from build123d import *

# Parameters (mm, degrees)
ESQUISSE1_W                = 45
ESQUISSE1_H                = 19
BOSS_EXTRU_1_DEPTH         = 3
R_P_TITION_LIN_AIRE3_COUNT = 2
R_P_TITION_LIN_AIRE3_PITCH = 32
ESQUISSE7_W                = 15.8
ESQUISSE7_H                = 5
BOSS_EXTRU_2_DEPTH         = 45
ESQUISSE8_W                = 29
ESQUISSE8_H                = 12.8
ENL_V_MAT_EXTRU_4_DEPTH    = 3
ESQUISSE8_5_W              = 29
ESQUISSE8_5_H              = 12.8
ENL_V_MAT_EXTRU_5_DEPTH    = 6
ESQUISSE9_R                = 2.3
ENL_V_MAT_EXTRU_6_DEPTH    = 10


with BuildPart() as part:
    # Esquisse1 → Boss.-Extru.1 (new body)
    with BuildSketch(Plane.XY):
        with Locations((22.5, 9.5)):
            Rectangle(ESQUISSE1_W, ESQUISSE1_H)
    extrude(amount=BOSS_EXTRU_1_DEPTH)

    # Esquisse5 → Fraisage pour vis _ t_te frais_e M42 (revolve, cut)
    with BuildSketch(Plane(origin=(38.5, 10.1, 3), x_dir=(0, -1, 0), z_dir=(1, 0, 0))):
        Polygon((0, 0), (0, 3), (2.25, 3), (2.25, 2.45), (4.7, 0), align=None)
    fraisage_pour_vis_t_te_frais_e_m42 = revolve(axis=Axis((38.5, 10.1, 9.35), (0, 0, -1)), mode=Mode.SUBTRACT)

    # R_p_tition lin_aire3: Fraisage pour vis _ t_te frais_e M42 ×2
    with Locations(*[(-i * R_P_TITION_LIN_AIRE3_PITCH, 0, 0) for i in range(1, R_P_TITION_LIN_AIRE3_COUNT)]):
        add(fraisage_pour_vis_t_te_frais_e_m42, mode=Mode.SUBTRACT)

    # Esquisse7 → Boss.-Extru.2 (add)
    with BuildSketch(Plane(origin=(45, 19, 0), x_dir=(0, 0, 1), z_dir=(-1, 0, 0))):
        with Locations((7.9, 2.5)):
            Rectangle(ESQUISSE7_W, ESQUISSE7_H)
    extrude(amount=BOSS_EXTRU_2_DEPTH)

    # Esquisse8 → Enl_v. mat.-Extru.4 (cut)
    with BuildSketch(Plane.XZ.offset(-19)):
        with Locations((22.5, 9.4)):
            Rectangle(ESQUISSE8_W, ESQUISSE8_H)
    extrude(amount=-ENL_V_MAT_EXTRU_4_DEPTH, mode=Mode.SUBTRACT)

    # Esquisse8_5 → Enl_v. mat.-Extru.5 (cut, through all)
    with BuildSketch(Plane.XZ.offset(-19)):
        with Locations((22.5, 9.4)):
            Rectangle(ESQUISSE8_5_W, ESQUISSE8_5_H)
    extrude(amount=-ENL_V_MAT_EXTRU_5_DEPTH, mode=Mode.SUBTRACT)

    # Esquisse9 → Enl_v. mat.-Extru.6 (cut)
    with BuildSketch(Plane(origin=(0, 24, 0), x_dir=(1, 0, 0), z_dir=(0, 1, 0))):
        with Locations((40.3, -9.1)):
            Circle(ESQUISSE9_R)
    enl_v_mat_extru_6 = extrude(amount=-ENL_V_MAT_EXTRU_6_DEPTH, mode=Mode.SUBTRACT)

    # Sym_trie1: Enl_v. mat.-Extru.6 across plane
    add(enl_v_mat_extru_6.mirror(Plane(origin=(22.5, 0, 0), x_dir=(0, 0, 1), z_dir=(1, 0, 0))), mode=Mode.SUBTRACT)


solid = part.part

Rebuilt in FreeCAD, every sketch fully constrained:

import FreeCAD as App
import Part
import Sketcher

V = App.Vector
Q = App.Units.Quantity


def add_polygon(sketch, points):
    """Adds a closed chain of lines whose ends are joined by coincident constraints."""
    first, n = sketch.GeometryCount, len(points)
    for a, b in zip(points, points[1:] + points[:1]):
        sketch.addGeometry(Part.LineSegment(App.Vector(*a, 0), App.Vector(*b, 0)), False)
    for i in range(n):
        sketch.addConstraint(Sketcher.Constraint("Coincident", first + i, 2, first + (i + 1) % n, 1))

doc = App.newDocument("Part")
body = doc.addObject("PartDesign::Body", "Body")

# Sketch on XY plane
sketch1 = body.newObject("Sketcher::SketchObject", "Sketch")
sketch1.AttachmentSupport = (doc.getObject("XY_Plane"), [""])
sketch1.MapMode = "FlatFace"
add_polygon(sketch1, [(0, 19), (0, 0), (45, 0), (45, 19)])  # lines 0-3
sketch1.addConstraint([
    Sketcher.Constraint("Vertical", 0),
    Sketcher.Constraint("Horizontal", 1),
    Sketcher.Constraint("Vertical", 2),
    Sketcher.Constraint("Horizontal", 3),
    Sketcher.Constraint("Coincident", 0, 2, -1, 1),
    Sketcher.Constraint("DistanceX", 1, 1, 1, 2, 45.0),
    Sketcher.Constraint("DistanceY", 0, 2, 0, 1, 19.0),
])
pad1 = body.newObject("PartDesign::Pad", "Pad")
pad1.Profile = sketch1
pad1.Length = 3

# Sketch on YZ plane
sketch2 = body.newObject("Sketcher::SketchObject", "Sketch001")
sketch2.AttachmentSupport = (doc.getObject("YZ_Plane"), [""])
sketch2.MapMode = "FlatFace"
sketch2.AttachmentOffset = App.Placement(V(0, 0, 38.5), App.Rotation())
add_polygon(sketch2, [(10.1, 0), (10.1, 3), (5.4, 3), (7.85, 0.55), (7.85, 0)])  # lines 0-4
sketch2.addGeometry(Part.LineSegment(V(10.1, 3, 0), V(10.1, 0, 0)), True)  # axis
sketch2.addConstraint([
    Sketcher.Constraint("Vertical", 0),
    Sketcher.Constraint("Horizontal", 1),
    Sketcher.Constraint("Vertical", 3),
    Sketcher.Constraint("Horizontal", 4),
    Sketcher.Constraint("Vertical", 5),
    Sketcher.Constraint("Coincident", 5, 1, 0, 2),
    Sketcher.Constraint("PointOnObject", 3, 2, -1),
    Sketcher.Constraint("PointOnObject", 5, 2, -1),
    Sketcher.Constraint("DistanceY", 0, 1, 0, 2, 3.0),
    Sketcher.Constraint("Angle", 2, Q("-45 deg")),
    Sketcher.Constraint("DistanceX", 1, 2, 1, 1, 4.7),
    Sketcher.Constraint("DistanceX", 4, 1, 4, 2, 2.25),
    Sketcher.Constraint("DistanceX", -1, 1, 0, 2, 10.1),
])
groove = body.newObject("PartDesign::Groove", "Groove")
groove.Profile = sketch2
groove.ReferenceAxis = (sketch2, ["Axis0"])
groove.Angle = 360
doc.recompute()

linearpattern = body.newObject("PartDesign::LinearPattern", "LinearPattern")
linearpattern.Originals = [groove]
linearpattern.Direction = (doc.getObject("X_Axis"), [""])
linearpattern.Mode = "offset"
linearpattern.Offset = 32
linearpattern.Occurrences = 2
linearpattern.Reversed = True
body.Tip = linearpattern

# Sketch on YZ plane
sketch3 = body.newObject("Sketcher::SketchObject", "Sketch002")
sketch3.AttachmentSupport = (doc.getObject("YZ_Plane"), [""])
sketch3.MapMode = "FlatFace"
sketch3.AttachmentOffset = App.Placement(V(0, 0, 45), App.Rotation())
add_polygon(sketch3, [(24, 0), (19, 0), (19, 15.8), (24, 15.8)])  # lines 0-3
sketch3.addConstraint([
    Sketcher.Constraint("Horizontal", 0),
    Sketcher.Constraint("Vertical", 1),
    Sketcher.Constraint("Horizontal", 2),
    Sketcher.Constraint("Vertical", 3),
    Sketcher.Constraint("PointOnObject", 0, 2, -1),
    Sketcher.Constraint("DistanceX", 0, 2, 0, 1, 5.0),
    Sketcher.Constraint("DistanceY", 1, 1, 1, 2, 15.8),
    Sketcher.Constraint("DistanceX", -1, 1, 0, 2, 19.0),
])
pad2 = body.newObject("PartDesign::Pad", "Pad001")
pad2.Profile = sketch3
pad2.Length = 45
pad2.Reversed = True

# Sketch on XZ plane
sketch4 = body.newObject("Sketcher::SketchObject", "Sketch003")
sketch4.AttachmentSupport = (doc.getObject("XZ_Plane"), [""])
sketch4.MapMode = "FlatFace"
sketch4.AttachmentOffset = App.Placement(V(0, 0, -19), App.Rotation())
add_polygon(sketch4, [(8, 15.8), (8, 3), (37, 3), (37, 15.8)])  # lines 0-3
sketch4.addConstraint([
    Sketcher.Constraint("Vertical", 0),
    Sketcher.Constraint("Horizontal", 1),
    Sketcher.Constraint("Vertical", 2),
    Sketcher.Constraint("Horizontal", 3),
    Sketcher.Constraint("DistanceX", 1, 1, 1, 2, 29.0),
    Sketcher.Constraint("DistanceY", 0, 2, 0, 1, 12.8),
    Sketcher.Constraint("DistanceX", -1, 1, 0, 2, 8.0),
    Sketcher.Constraint("DistanceY", -1, 1, 0, 2, 3.0),
])
pocket1 = body.newObject("PartDesign::Pocket", "Pocket")
pocket1.Profile = sketch4
pocket1.Length = 3

# Sketch on XZ plane
sketch5 = body.newObject("Sketcher::SketchObject", "Sketch004")
sketch5.AttachmentSupport = (doc.getObject("XZ_Plane"), [""])
sketch5.MapMode = "FlatFace"
sketch5.AttachmentOffset = App.Placement(V(0, 0, -19), App.Rotation())
add_polygon(sketch5, [(8, 15.8), (8, 3), (37, 3), (37, 15.8)])  # lines 0-3
sketch5.addConstraint([
    Sketcher.Constraint("Vertical", 0),
    Sketcher.Constraint("Horizontal", 1),
    Sketcher.Constraint("Vertical", 2),
    Sketcher.Constraint("Horizontal", 3),
    Sketcher.Constraint("DistanceX", 1, 1, 1, 2, 29.0),
    Sketcher.Constraint("DistanceY", 0, 2, 0, 1, 12.8),
    Sketcher.Constraint("DistanceX", -1, 1, 0, 2, 8.0),
    Sketcher.Constraint("DistanceY", -1, 1, 0, 2, 3.0),
])
pocket2 = body.newObject("PartDesign::Pocket", "Pocket001")
pocket2.Profile = sketch5
pocket2.Type = "ThroughAll"

# Sketch on XZ plane
sketch6 = body.newObject("Sketcher::SketchObject", "Sketch005")
sketch6.AttachmentSupport = (doc.getObject("XZ_Plane"), [""])
sketch6.MapMode = "FlatFace"
sketch6.AttachmentOffset = App.Placement(V(0, 0, -24), App.Rotation())
sketch6.addGeometry(Part.Circle(V(40.3, 9.1, 0), V(0, 0, 1), 2.3), False)
sketch6.addConstraint([
    Sketcher.Constraint("Diameter", 0, 4.6),
    Sketcher.Constraint("DistanceX", -1, 1, 0, 3, 40.3),
    Sketcher.Constraint("DistanceY", -1, 1, 0, 3, 9.1),
])
pocket3 = body.newObject("PartDesign::Pocket", "Pocket002")
pocket3.Profile = sketch6
pocket3.Length = 10
pocket3.Reversed = True
doc.recompute()

datumplane = body.newObject("PartDesign::Plane", "DatumPlane")
datumplane.AttachmentSupport = (doc.getObject("YZ_Plane"), [""])
datumplane.MapMode = "FlatFace"
datumplane.AttachmentOffset = App.Placement(V(0, 0, 22.5), App.Rotation())
mirrored = body.newObject("PartDesign::Mirrored", "Mirrored")
mirrored.Originals = [pocket3]
mirrored.MirrorPlane = (datumplane, [""])
body.Tip = mirrored

doc.recompute()
